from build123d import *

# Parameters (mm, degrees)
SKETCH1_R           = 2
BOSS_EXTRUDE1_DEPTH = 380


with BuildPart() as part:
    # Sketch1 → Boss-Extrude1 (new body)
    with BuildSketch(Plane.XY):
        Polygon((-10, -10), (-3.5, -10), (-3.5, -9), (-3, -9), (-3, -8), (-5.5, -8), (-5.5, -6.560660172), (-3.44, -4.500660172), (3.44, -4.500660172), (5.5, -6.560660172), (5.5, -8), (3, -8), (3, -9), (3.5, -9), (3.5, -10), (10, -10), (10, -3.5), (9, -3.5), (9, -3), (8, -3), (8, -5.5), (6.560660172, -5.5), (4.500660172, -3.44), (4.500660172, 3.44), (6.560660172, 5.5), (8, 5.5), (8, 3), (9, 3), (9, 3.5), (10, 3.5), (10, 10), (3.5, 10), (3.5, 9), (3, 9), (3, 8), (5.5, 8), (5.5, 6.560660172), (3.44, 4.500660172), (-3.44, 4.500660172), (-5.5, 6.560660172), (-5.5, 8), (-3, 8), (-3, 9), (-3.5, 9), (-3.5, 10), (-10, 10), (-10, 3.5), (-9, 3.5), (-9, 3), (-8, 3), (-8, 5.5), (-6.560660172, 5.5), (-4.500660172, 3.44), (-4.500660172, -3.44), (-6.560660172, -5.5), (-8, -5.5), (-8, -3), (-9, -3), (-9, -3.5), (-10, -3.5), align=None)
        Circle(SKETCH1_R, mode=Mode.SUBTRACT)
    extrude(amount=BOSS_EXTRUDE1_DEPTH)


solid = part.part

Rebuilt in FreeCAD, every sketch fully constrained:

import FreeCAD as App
import Part
import Sketcher
from FreeCAD import Vector
Q = App.Units.Quantity

doc = App.newDocument("Part")
body = doc.addObject("PartDesign::Body", "Body")

# Sketch on XY plane
sketch1 = body.newObject("Sketcher::SketchObject", "Sketch")
sketch1.AttachmentSupport = (doc.getObject("XY_Plane"), [""])
sketch1.MapMode = "FlatFace"
sketch1.addGeometry([
    Part.LineSegment(Vector(-10, -10, 0), Vector(-3.5, -10, 0)),  # 0
    Part.LineSegment(Vector(-3.5, -10, 0), Vector(-3.5, -9, 0)),  # 1
    Part.LineSegment(Vector(-3.5, -9, 0), Vector(-3, -9, 0)),  # 2
    Part.LineSegment(Vector(-3, -9, 0), Vector(-3, -8, 0)),  # 3
    Part.LineSegment(Vector(-3, -8, 0), Vector(-5.5, -8, 0)),  # 4
    Part.LineSegment(Vector(-5.5, -8, 0), Vector(-5.5, -6.6, 0)),  # 5
    Part.LineSegment(Vector(-5.5, -6.6, 0), Vector(-3.4, -4.5, 0)),  # 6
    Part.LineSegment(Vector(-3.4, -4.5, 0), Vector(3.4, -4.5, 0)),  # 7
    Part.LineSegment(Vector(3.4, -4.5, 0), Vector(5.5, -6.6, 0)),  # 8
    Part.LineSegment(Vector(5.5, -6.6, 0), Vector(5.5, -8, 0)),  # 9
    Part.LineSegment(Vector(5.5, -8, 0), Vector(3, -8, 0)),  # 10
    Part.LineSegment(Vector(3, -8, 0), Vector(3, -9, 0)),  # 11
    Part.LineSegment(Vector(3, -9, 0), Vector(3.5, -9, 0)),  # 12
    Part.LineSegment(Vector(3.5, -9, 0), Vector(3.5, -10, 0)),  # 13
    Part.LineSegment(Vector(3.5, -10, 0), Vector(10, -10, 0)),  # 14
    Part.LineSegment(Vector(10, -10, 0), Vector(10, -3.5, 0)),  # 15
    Part.LineSegment(Vector(10, -3.5, 0), Vector(9, -3.5, 0)),  # 16
    Part.LineSegment(Vector(9, -3.5, 0), Vector(9, -3, 0)),  # 17
    Part.LineSegment(Vector(9, -3, 0), Vector(8, -3, 0)),  # 18
    Part.LineSegment(Vector(8, -3, 0), Vector(8, -5.5, 0)),  # 19
    Part.LineSegment(Vector(8, -5.5, 0), Vector(6.6, -5.5, 0)),  # 20
    Part.LineSegment(Vector(6.6, -5.5, 0), Vector(4.5, -3.4, 0)),  # 21
    Part.LineSegment(Vector(4.5, -3.4, 0), Vector(4.5, 3.4, 0)),  # 22
    Part.LineSegment(Vector(4.5, 3.4, 0), Vector(6.6, 5.5, 0)),  # 23
    Part.LineSegment(Vector(6.6, 5.5, 0), Vector(8, 5.5, 0)),  # 24
    Part.LineSegment(Vector(8, 5.5, 0), Vector(8, 3, 0)),  # 25
    Part.LineSegment(Vector(8, 3, 0), Vector(9, 3, 0)),  # 26
    Part.LineSegment(Vector(9, 3, 0), Vector(9, 3.5, 0)),  # 27
    Part.LineSegment(Vector(9, 3.5, 0), Vector(10, 3.5, 0)),  # 28
    Part.LineSegment(Vector(10, 3.5, 0), Vector(10, 10, 0)),  # 29
    Part.LineSegment(Vector(10, 10, 0), Vector(3.5, 10, 0)),  # 30
    Part.LineSegment(Vector(3.5, 10, 0), Vector(3.5, 9, 0)),  # 31
    Part.LineSegment(Vector(3.5, 9, 0), Vector(3, 9, 0)),  # 32
    Part.LineSegment(Vector(3, 9, 0), Vector(3, 8, 0)),  # 33
    Part.LineSegment(Vector(3, 8, 0), Vector(5.5, 8, 0)),  # 34
    Part.LineSegment(Vector(5.5, 8, 0), Vector(5.5, 6.6, 0)),  # 35
    Part.LineSegment(Vector(5.5, 6.6, 0), Vector(3.4, 4.5, 0)),  # 36
    Part.LineSegment(Vector(3.4, 4.5, 0), Vector(-3.4, 4.5, 0)),  # 37
    Part.LineSegment(Vector(-3.4, 4.5, 0), Vector(-5.5, 6.6, 0)),  # 38
    Part.LineSegment(Vector(-5.5, 6.6, 0), Vector(-5.5, 8, 0)),  # 39
    Part.LineSegment(Vector(-5.5, 8, 0), Vector(-3, 8, 0)),  # 40
    Part.LineSegment(Vector(-3, 8, 0), Vector(-3, 9, 0)),  # 41
    Part.LineSegment(Vector(-3, 9, 0), Vector(-3.5, 9, 0)),  # 42
    Part.LineSegment(Vector(-3.5, 9, 0), Vector(-3.5, 10, 0)),  # 43
    Part.LineSegment(Vector(-3.5, 10, 0), Vector(-10, 10, 0)),  # 44
    Part.LineSegment(Vector(-10, 10, 0), Vector(-10, 3.5, 0)),  # 45
    Part.LineSegment(Vector(-10, 3.5, 0), Vector(-9, 3.5, 0)),  # 46
    Part.LineSegment(Vector(-9, 3.5, 0), Vector(-9, 3, 0)),  # 47
    Part.LineSegment(Vector(-9, 3, 0), Vector(-8, 3, 0)),  # 48
    Part.LineSegment(Vector(-8, 3, 0), Vector(-8, 5.5, 0)),  # 49
    Part.LineSegment(Vector(-8, 5.5, 0), Vector(-6.6, 5.5, 0)),  # 50
    Part.LineSegment(Vector(-6.6, 5.5, 0), Vector(-4.5, 3.4, 0)),  # 51
    Part.LineSegment(Vector(-4.5, 3.4, 0), Vector(-4.5, -3.4, 0)),  # 52
    Part.LineSegment(Vector(-4.5, -3.4, 0), Vector(-6.6, -5.5, 0)),  # 53
    Part.LineSegment(Vector(-6.6, -5.5, 0), Vector(-8, -5.5, 0)),  # 54
    Part.LineSegment(Vector(-8, -5.5, 0), Vector(-8, -3, 0)),  # 55
    Part.LineSegment(Vector(-8, -3, 0), Vector(-9, -3, 0)),  # 56
    Part.LineSegment(Vector(-9, -3, 0), Vector(-9, -3.5, 0)),  # 57
    Part.LineSegment(Vector(-9, -3.5, 0), Vector(-10, -3.5, 0)),  # 58
    Part.LineSegment(Vector(-10, -3.5, 0), Vector(-10, -10, 0)),  # 59
    Part.Circle(Vector(0, 0, 0), Vector(0, 0, 1), 2),  # 60
], False)
sketch1.addConstraint([
    Sketcher.Constraint("Coincident", 0, 2, 1, 1),
    Sketcher.Constraint("Coincident", 1, 2, 2, 1),
    Sketcher.Constraint("Coincident", 2, 2, 3, 1),
    Sketcher.Constraint("Coincident", 3, 2, 4, 1),
    Sketcher.Constraint("Coincident", 4, 2, 5, 1),
    Sketcher.Constraint("Coincident", 5, 2, 6, 1),
    Sketcher.Constraint("Coincident", 6, 2, 7, 1),
    Sketcher.Constraint("Coincident", 7, 2, 8, 1),
    Sketcher.Constraint("Coincident", 8, 2, 9, 1),
    Sketcher.Constraint("Coincident", 9, 2, 10, 1),
    Sketcher.Constraint("Coincident", 10, 2, 11, 1),
    Sketcher.Constraint("Coincident", 11, 2, 12, 1),
    Sketcher.Constraint("Coincident", 12, 2, 13, 1),
    Sketcher.Constraint("Coincident", 13, 2, 14, 1),
    Sketcher.Constraint("Coincident", 14, 2, 15, 1),
    Sketcher.Constraint("Coincident", 15, 2, 16, 1),
    Sketcher.Constraint("Coincident", 16, 2, 17, 1),
    Sketcher.Constraint("Coincident", 17, 2, 18, 1),
    Sketcher.Constraint("Coincident", 18, 2, 19, 1),
    Sketcher.Constraint("Coincident", 19, 2, 20, 1),
    Sketcher.Constraint("Coincident", 20, 2, 21, 1),
    Sketcher.Constraint("Coincident", 21, 2, 22, 1),
    Sketcher.Constraint("Coincident", 22, 2, 23, 1),
    Sketcher.Constraint("Coincident", 23, 2, 24, 1),
    Sketcher.Constraint("Coincident", 24, 2, 25, 1),
    Sketcher.Constraint("Coincident", 25, 2, 26, 1),
    Sketcher.Constraint("Coincident", 26, 2, 27, 1),
    Sketcher.Constraint("Coincident", 27, 2, 28, 1),
    Sketcher.Constraint("Coincident", 28, 2, 29, 1),
    Sketcher.Constraint("Coincident", 29, 2, 30, 1),
    Sketcher.Constraint("Coincident", 30, 2, 31, 1),
    Sketcher.Constraint("Coincident", 31, 2, 32, 1),
    Sketcher.Constraint("Coincident", 32, 2, 33, 1),
    Sketcher.Constraint("Coincident", 33, 2, 34, 1),
    Sketcher.Constraint("Coincident", 34, 2, 35, 1),
    Sketcher.Constraint("Coincident", 35, 2, 36, 1),
    Sketcher.Constraint("Coincident", 36, 2, 37, 1),
    Sketcher.Constraint("Coincident", 37, 2, 38, 1),
    Sketcher.Constraint("Coincident", 38, 2, 39, 1),
    Sketcher.Constraint("Coincident", 39, 2, 40, 1),
    Sketcher.Constraint("Coincident", 40, 2, 41, 1),
    Sketcher.Constraint("Coincident", 41, 2, 42, 1),
    Sketcher.Constraint("Coincident", 42, 2, 43, 1),
    Sketcher.Constraint("Coincident", 43, 2, 44, 1),
    Sketcher.Constraint("Coincident", 44, 2, 45, 1),
    Sketcher.Constraint("Coincident", 45, 2, 46, 1),
    Sketcher.Constraint("Coincident", 46, 2, 47, 1),
    Sketcher.Constraint("Coincident", 47, 2, 48, 1),
    Sketcher.Constraint("Coincident", 48, 2, 49, 1),
    Sketcher.Constraint("Coincident", 49, 2, 50, 1),
    Sketcher.Constraint("Coincident", 50, 2, 51, 1),
    Sketcher.Constraint("Coincident", 51, 2, 52, 1),
    Sketcher.Constraint("Coincident", 52, 2, 53, 1),
    Sketcher.Constraint("Coincident", 53, 2, 54, 1),
    Sketcher.Constraint("Coincident", 54, 2, 55, 1),
    Sketcher.Constraint("Coincident", 55, 2, 56, 1),
    Sketcher.Constraint("Coincident", 56, 2, 57, 1),
    Sketcher.Constraint("Coincident", 57, 2, 58, 1),
    Sketcher.Constraint("Coincident", 58, 2, 59, 1),
    Sketcher.Constraint("Coincident", 59, 2, 0, 1),
    Sketcher.Constraint("Horizontal", 0),
    Sketcher.Constraint("Vertical", 1),
    Sketcher.Constraint("Horizontal", 2),
    Sketcher.Constraint("Vertical", 3),
    Sketcher.Constraint("Horizontal", 4),
    Sketcher.Constraint("Vertical", 5),
    Sketcher.Constraint("Horizontal", 7),
    Sketcher.Constraint("Vertical", 9),
    Sketcher.Constraint("Horizontal", 10),
    Sketcher.Constraint("Vertical", 11),
    Sketcher.Constraint("Horizontal", 12),
    Sketcher.Constraint("Vertical", 13),
    Sketcher.Constraint("Horizontal", 14),
    Sketcher.Constraint("Vertical", 15),
    Sketcher.Constraint("Horizontal", 16),
    Sketcher.Constraint("Vertical", 17),
    Sketcher.Constraint("Horizontal", 18),
    Sketcher.Constraint("Vertical", 19),
    Sketcher.Constraint("Horizontal", 20),
    Sketcher.Constraint("Vertical", 22),
    Sketcher.Constraint("Horizontal", 24),
    Sketcher.Constraint("Vertical", 25),
    Sketcher.Constraint("Horizontal", 26),
    Sketcher.Constraint("Vertical", 27),
    Sketcher.Constraint("Horizontal", 28),
    Sketcher.Constraint("Vertical", 29),
    Sketcher.Constraint("Horizontal", 30),
    Sketcher.Constraint("Vertical", 31),
    Sketcher.Constraint("Horizontal", 32),
    Sketcher.Constraint("Vertical", 33),
    Sketcher.Constraint("Horizontal", 34),
    Sketcher.Constraint("Vertical", 35),
    Sketcher.Constraint("Horizontal", 37),
    Sketcher.Constraint("Vertical", 39),
    Sketcher.Constraint("Horizontal", 40),
    Sketcher.Constraint("Vertical", 41),
    Sketcher.Constraint("Horizontal", 42),
    Sketcher.Constraint("Vertical", 43),
    Sketcher.Constraint("Horizontal", 44),
    Sketcher.Constraint("Vertical", 45),
    Sketcher.Constraint("Horizontal", 46),
    Sketcher.Constraint("Vertical", 47),
    Sketcher.Constraint("Horizontal", 48),
    Sketcher.Constraint("Vertical", 49),
    Sketcher.Constraint("Horizontal", 50),
    Sketcher.Constraint("Vertical", 52),
    Sketcher.Constraint("Horizontal", 54),
    Sketcher.Constraint("Vertical", 55),
    Sketcher.Constraint("Horizontal", 56),
    Sketcher.Constraint("Vertical", 57),
    Sketcher.Constraint("Horizontal", 58),
    Sketcher.Constraint("Vertical", 59),
    Sketcher.Constraint("Coincident", 60, 3, -1, 1),
    Sketcher.Constraint("Symmetric", 0, 2, 30, 2, -1, 1),
    Sketcher.Constraint("Symmetric", 2, 2, 32, 2, -1, 1),
    Sketcher.Constraint("Symmetric", 4, 2, 34, 2, -1, 1),
    Sketcher.Constraint("Symmetric", 6, 2, 36, 2, -1, 1),
    Sketcher.Constraint("Symmetric", 8, 2, 38, 2, -1, 1),
    Sketcher.Constraint("Symmetric", 10, 2, 40, 2, -1, 1),
    Sketcher.Constraint("Symmetric", 12, 2, 42, 2, -1, 1),
    Sketcher.Constraint("Symmetric", 14, 2, 44, 2, -1, 1),
    Sketcher.Constraint("Symmetric", 16, 2, 46, 2, -1, 1),
    Sketcher.Constraint("Symmetric", 18, 2, 48, 2, -1, 1),
    Sketcher.Constraint("Symmetric", 20, 2, 50, 2, -1, 1),
    Sketcher.Constraint("Symmetric", 21, 2, 51, 2, -1, 1),
    Sketcher.Constraint("Symmetric", 23, 2, 53, 2, -1, 1),
    Sketcher.Constraint("Symmetric", 25, 2, 55, 2, -1, 1),
    Sketcher.Constraint("Symmetric", 27, 2, 57, 2, -1, 1),
    Sketcher.Constraint("Symmetric", 5, 2, 8, 2, -2),
    Sketcher.Constraint("Symmetric", 3, 2, 10, 2, -2),
    Sketcher.Constraint("Symmetric", 1, 2, 12, 2, -2),
    Sketcher.Constraint("Symmetric", 29, 2, 44, 2, -2),
    Sketcher.Constraint("Symmetric", 27, 2, 46, 2, -2),
    Sketcher.Constraint("Symmetric", 25, 2, 48, 2, -2),
    Sketcher.Constraint("Symmetric", 23, 2, 50, 2, -2),
    Sketcher.Constraint("Perpendicular", 6, 8),
    Sketcher.Constraint("Parallel", 8, 21),
    Sketcher.Constraint("Perpendicular", 21, 23),
    Sketcher.Constraint("Parallel", 23, 36),
    Sketcher.Constraint("Perpendicular", 36, 38),
    Sketcher.Constraint("Perpendicular", 51, 53),
    Sketcher.Constraint("Horizontal", 22, 2, 51, 2),
    Sketcher.Constraint("Vertical", 45, 2, 58, 2),
    Sketcher.Constraint("Equal", 16, 18),
    Sketcher.Constraint("Equal", 58, 1),
    Sketcher.Constraint("Equal", 1, 3),
    Sketcher.Constraint("Equal", 54, 5),
    Sketcher.Constraint("Equal", 44, 15),
    Sketcher.Constraint("Equal", 42, 17),
    Sketcher.Constraint("Equal", 40, 19),
    Sketcher.Constraint("Equal", 37, 22),
    Sketcher.Constraint("Equal", 8, 21),
    Sketcher.Constraint("Diameter", 60, Q("4 mm")),
    Sketcher.Constraint("DistanceX", 16, 2, 16, 1, Q("1 mm")),
    Sketcher.Constraint("DistanceX", 0, 1, 0, 2, Q("6.5 mm")),
    Sketcher.Constraint("DistanceX", 2, 1, 2, 2, Q("0.5 mm")),
    Sketcher.Constraint("DistanceX", 4, 2, 4, 1, Q("2.5 mm")),
    Sketcher.Constraint("DistanceY", 0, 2, -1, 1, Q("10 mm")),
    Sketcher.Constraint("DistanceX", 7, 1, 7, 2, Q("6.88 mm")),
    Sketcher.Constraint("DistanceX", 20, 2, 20, 1, Q("1.43934 mm")),
])
pad1 = body.newObject("PartDesign::Pad", "Pad")
pad1.Profile = sketch1
pad1.Length = 380

doc.recompute()
